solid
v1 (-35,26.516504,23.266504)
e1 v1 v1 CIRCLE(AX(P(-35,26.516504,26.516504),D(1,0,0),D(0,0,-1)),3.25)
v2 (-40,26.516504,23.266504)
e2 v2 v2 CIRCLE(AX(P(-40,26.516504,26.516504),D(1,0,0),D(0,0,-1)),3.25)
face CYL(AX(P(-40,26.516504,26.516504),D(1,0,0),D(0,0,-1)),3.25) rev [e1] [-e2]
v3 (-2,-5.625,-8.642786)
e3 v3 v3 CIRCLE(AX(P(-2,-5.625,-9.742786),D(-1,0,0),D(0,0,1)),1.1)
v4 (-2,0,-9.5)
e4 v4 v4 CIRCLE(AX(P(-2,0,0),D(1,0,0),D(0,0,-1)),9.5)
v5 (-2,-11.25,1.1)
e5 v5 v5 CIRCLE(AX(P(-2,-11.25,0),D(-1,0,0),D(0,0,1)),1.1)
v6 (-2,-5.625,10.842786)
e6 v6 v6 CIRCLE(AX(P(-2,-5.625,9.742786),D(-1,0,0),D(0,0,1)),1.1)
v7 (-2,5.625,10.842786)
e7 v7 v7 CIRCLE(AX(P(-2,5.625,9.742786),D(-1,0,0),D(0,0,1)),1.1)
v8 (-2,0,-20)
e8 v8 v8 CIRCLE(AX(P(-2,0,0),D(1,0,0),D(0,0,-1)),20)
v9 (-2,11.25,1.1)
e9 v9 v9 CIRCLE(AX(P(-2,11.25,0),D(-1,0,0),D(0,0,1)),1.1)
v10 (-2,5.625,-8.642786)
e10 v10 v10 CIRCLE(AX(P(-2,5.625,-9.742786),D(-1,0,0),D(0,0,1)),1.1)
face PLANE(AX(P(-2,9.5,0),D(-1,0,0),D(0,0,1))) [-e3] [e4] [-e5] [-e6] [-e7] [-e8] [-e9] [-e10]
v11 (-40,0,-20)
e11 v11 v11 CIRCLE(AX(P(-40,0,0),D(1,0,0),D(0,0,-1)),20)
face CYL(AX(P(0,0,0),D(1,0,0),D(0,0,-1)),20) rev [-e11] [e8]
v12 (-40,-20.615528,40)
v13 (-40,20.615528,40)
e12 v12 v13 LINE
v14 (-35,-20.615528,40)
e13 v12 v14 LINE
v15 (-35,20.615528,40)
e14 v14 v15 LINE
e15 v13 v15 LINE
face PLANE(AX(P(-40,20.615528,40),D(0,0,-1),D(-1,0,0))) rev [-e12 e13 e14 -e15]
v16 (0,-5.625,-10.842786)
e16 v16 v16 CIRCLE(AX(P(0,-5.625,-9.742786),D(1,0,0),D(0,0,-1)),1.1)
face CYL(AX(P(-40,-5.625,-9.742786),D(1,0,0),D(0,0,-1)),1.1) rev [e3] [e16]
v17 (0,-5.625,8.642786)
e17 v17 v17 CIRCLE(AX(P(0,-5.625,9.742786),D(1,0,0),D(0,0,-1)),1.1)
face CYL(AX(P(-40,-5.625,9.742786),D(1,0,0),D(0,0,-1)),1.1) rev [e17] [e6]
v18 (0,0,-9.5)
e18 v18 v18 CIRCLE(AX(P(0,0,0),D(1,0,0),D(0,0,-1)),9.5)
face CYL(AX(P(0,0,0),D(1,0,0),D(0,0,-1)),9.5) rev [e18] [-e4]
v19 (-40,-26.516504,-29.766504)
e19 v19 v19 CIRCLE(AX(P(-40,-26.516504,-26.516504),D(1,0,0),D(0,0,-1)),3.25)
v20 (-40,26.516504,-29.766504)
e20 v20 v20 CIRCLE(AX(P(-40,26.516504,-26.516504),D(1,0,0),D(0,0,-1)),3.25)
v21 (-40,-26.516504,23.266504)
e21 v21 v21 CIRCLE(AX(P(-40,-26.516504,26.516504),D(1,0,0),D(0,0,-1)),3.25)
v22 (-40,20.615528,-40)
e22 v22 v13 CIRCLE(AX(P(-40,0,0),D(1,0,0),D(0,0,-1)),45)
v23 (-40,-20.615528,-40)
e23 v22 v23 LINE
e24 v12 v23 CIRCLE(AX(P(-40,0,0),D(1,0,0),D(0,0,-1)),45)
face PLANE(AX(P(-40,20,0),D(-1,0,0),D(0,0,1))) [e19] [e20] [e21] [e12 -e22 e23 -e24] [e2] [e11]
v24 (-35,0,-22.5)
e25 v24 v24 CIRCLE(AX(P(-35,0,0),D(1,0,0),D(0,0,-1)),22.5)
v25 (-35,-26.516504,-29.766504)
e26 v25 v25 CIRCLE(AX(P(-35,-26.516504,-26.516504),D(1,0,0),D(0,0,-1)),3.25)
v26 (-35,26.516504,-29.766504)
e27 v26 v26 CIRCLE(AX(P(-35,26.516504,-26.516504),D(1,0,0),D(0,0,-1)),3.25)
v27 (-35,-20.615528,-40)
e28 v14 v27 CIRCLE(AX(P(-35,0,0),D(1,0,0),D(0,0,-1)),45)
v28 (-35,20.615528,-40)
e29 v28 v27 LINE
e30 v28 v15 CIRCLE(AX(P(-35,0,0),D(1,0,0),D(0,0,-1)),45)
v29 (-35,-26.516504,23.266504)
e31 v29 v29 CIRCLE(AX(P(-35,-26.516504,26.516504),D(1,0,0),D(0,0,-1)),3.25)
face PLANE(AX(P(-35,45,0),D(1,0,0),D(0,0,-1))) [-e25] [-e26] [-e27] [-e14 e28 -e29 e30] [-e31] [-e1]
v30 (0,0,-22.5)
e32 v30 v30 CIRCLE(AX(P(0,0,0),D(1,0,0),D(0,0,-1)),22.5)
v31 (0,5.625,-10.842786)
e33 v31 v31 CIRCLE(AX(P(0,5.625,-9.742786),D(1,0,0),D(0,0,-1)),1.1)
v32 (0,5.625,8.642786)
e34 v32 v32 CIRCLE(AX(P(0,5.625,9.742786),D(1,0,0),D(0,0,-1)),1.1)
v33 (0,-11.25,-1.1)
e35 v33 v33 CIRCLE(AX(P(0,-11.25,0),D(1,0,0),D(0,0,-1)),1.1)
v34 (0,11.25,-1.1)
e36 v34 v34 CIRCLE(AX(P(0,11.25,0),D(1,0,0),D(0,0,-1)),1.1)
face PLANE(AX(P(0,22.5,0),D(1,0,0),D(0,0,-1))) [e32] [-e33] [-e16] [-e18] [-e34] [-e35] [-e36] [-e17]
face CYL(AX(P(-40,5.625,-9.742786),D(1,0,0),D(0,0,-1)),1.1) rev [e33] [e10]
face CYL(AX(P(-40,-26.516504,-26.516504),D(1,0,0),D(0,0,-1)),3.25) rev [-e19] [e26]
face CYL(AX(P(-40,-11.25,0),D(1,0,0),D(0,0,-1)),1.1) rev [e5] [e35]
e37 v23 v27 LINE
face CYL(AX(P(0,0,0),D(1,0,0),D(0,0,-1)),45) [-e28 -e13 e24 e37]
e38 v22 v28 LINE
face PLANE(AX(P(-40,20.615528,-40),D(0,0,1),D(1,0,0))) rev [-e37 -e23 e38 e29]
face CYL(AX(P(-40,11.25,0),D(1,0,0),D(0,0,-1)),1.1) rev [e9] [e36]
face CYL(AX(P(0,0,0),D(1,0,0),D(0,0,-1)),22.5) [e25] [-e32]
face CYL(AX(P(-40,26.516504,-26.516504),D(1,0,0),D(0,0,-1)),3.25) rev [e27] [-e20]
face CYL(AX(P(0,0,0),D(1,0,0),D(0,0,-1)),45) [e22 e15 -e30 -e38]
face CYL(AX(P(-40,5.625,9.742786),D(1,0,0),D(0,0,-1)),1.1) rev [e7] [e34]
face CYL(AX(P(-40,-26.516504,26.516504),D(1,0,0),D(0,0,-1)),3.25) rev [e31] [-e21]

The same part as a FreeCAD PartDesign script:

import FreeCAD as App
import Part
import Sketcher
Q = App.Units.Quantity

doc = App.newDocument("Part")
body = doc.addObject("PartDesign::Body", "Body")

# Sketch on XY plane
sketch1 = doc.addObject("Sketcher::SketchObject", "Sketch")
body.addObject(sketch1)
sketch1.AttachmentSupport = (doc.XY_Plane, [""])
sketch1.MapMode = "FlatFace"
sketch1.addGeometry(Part.LineSegment(App.Vector(-2, 20, 0), App.Vector(-2, 9.5, 0)), False)
sketch1.addGeometry(Part.LineSegment(App.Vector(-2, 9.5, 0), App.Vector(0, 9.5, 0)), False)
sketch1.addGeometry(Part.LineSegment(App.Vector(0, 9.5, 0), App.Vector(0, 22.5, 0)), False)
sketch1.addGeometry(Part.LineSegment(App.Vector(0, 22.5, 0), App.Vector(-35, 22.5, 0)), False)
sketch1.addGeometry(Part.LineSegment(App.Vector(-35, 22.5, 0), App.Vector(-35, 45, 0)), False)
sketch1.addGeometry(Part.LineSegment(App.Vector(-35, 45, 0), App.Vector(-40, 45, 0)), False)
sketch1.addGeometry(Part.LineSegment(App.Vector(-40, 45, 0), App.Vector(-40, 20, 0)), False)
sketch1.addGeometry(Part.LineSegment(App.Vector(-40, 20, 0), App.Vector(-2, 20, 0)), False)
sketch1.addConstraint(Sketcher.Constraint("Coincident", 0, 2, 1, 1))
sketch1.addConstraint(Sketcher.Constraint("Coincident", 1, 2, 2, 1))
sketch1.addConstraint(Sketcher.Constraint("Coincident", 2, 2, 3, 1))
sketch1.addConstraint(Sketcher.Constraint("Coincident", 3, 2, 4, 1))
sketch1.addConstraint(Sketcher.Constraint("Coincident", 4, 2, 5, 1))
sketch1.addConstraint(Sketcher.Constraint("Coincident", 5, 2, 6, 1))
sketch1.addConstraint(Sketcher.Constraint("Coincident", 6, 2, 7, 1))
sketch1.addConstraint(Sketcher.Constraint("Coincident", 7, 2, 0, 1))
sketch1.addConstraint(Sketcher.Constraint("Vertical", 0))
sketch1.addConstraint(Sketcher.Constraint("Horizontal", 1))
sketch1.addConstraint(Sketcher.Constraint("Vertical", 2))
sketch1.addConstraint(Sketcher.Constraint("Horizontal", 3))
sketch1.addConstraint(Sketcher.Constraint("Vertical", 4))
sketch1.addConstraint(Sketcher.Constraint("Horizontal", 5))
sketch1.addConstraint(Sketcher.Constraint("Vertical", 6))
sketch1.addConstraint(Sketcher.Constraint("Horizontal", 7))
sketch1.addConstraint(Sketcher.Constraint("PointOnObject", 1, 2, -2))
sketch1.addConstraint(Sketcher.Constraint("DistanceX", 1, 1, 1, 2, Q("2 mm")))
sketch1.addConstraint(Sketcher.Constraint("DistanceX", 3, 2, 3, 1, Q("35 mm")))
sketch1.addConstraint(Sketcher.Constraint("DistanceX", 5, 2, 5, 1, Q("5 mm")))
sketch1.addConstraint(Sketcher.Constraint("DistanceY", 2, 1, 2, 2, Q("13 mm")))
sketch1.addConstraint(Sketcher.Constraint("DistanceY", 6, 2, 6, 1, Q("25 mm")))
sketch1.addConstraint(Sketcher.Constraint("DistanceY", 0, 2, 0, 1, Q("10.5 mm")))
sketch1.addConstraint(Sketcher.Constraint("DistanceY", -1, 1, 4, 2, Q("45 mm")))
revolution = doc.addObject("PartDesign::Revolution", "Revolution")
body.addObject(revolution)
revolution.Profile = sketch1
revolution.ReferenceAxis = (sketch1, ["H_Axis"])
revolution.Angle = 360

# Sketch on YZ plane
sketch2 = doc.addObject("Sketcher::SketchObject", "Sketch001")
body.addObject(sketch2)
sketch2.AttachmentSupport = (doc.YZ_Plane, [""])
sketch2.MapMode = "FlatFace"
sketch2.addGeometry(Part.Circle(App.Vector(26.516504, -26.516504, 0), App.Vector(0, 0, 1), 3.25), False)
sketch2.addGeometry(Part.Circle(App.Vector(-26.516504, -26.516504, 0), App.Vector(0, 0, 1), 3.25), False)
sketch2.addGeometry(Part.Circle(App.Vector(-26.516504, 26.516504, 0), App.Vector(0, 0, 1), 3.25), False)
sketch2.addGeometry(Part.Circle(App.Vector(26.516504, 26.516504, 0), App.Vector(0, 0, 1), 3.25), False)
sketch2.addGeometry(Part.Circle(App.Vector(11.25, 0, 0), App.Vector(0, 0, 1), 1.1), False)
sketch2.addGeometry(Part.Circle(App.Vector(5.625, -9.742786, 0), App.Vector(0, 0, 1), 1.1), False)
sketch2.addGeometry(Part.Circle(App.Vector(-5.625, -9.742786, 0), App.Vector(0, 0, 1), 1.1), False)
sketch2.addGeometry(Part.Circle(App.Vector(-11.25, 0, 0), App.Vector(0, 0, 1), 1.1), False)
sketch2.addGeometry(Part.Circle(App.Vector(-5.625, 9.742786, 0), App.Vector(0, 0, 1), 1.1), False)
sketch2.addGeometry(Part.Circle(App.Vector(5.625, 9.742786, 0), App.Vector(0, 0, 1), 1.1), False)
sketch2.addGeometry(Part.LineSegment(App.Vector(20.615528, 45, 0), App.Vector(-20.615528, 45, 0)), False)
sketch2.addGeometry(Part.LineSegment(App.Vector(-20.615528, 45, 0), App.Vector(-20.615528, 40, 0)), False)
sketch2.addGeometry(Part.LineSegment(App.Vector(-20.615528, 40, 0), App.Vector(20.615528, 40, 0)), False)
sketch2.addGeometry(Part.LineSegment(App.Vector(20.615528, 40, 0), App.Vector(20.615528, 45, 0)), False)
sketch2.addGeometry(Part.LineSegment(App.Vector(20.615528, -40, 0), App.Vector(-20.615528, -40, 0)), False)
sketch2.addGeometry(Part.LineSegment(App.Vector(-20.615528, -40, 0), App.Vector(-20.615528, -45, 0)), False)
sketch2.addGeometry(Part.LineSegment(App.Vector(-20.615528, -45, 0), App.Vector(20.615528, -45, 0)), False)
sketch2.addGeometry(Part.LineSegment(App.Vector(20.615528, -45, 0), App.Vector(20.615528, -40, 0)), False)
sketch2.addConstraint(Sketcher.Constraint("Coincident", 10, 2, 11, 1))
sketch2.addConstraint(Sketcher.Constraint("Coincident", 11, 2, 12, 1))
sketch2.addConstraint(Sketcher.Constraint("Coincident", 12, 2, 13, 1))
sketch2.addConstraint(Sketcher.Constraint("Coincident", 13, 2, 10, 1))
sketch2.addConstraint(Sketcher.Constraint("Coincident", 14, 2, 15, 1))
sketch2.addConstraint(Sketcher.Constraint("Coincident", 15, 2, 16, 1))
sketch2.addConstraint(Sketcher.Constraint("Coincident", 16, 2, 17, 1))
sketch2.addConstraint(Sketcher.Constraint("Coincident", 17, 2, 14, 1))
sketch2.addConstraint(Sketcher.Constraint("Horizontal", 10))
sketch2.addConstraint(Sketcher.Constraint("Vertical", 11))
sketch2.addConstraint(Sketcher.Constraint("Horizontal", 12))
sketch2.addConstraint(Sketcher.Constraint("Vertical", 13))
sketch2.addConstraint(Sketcher.Constraint("Horizontal", 14))
sketch2.addConstraint(Sketcher.Constraint("Vertical", 15))
sketch2.addConstraint(Sketcher.Constraint("Horizontal", 16))
sketch2.addConstraint(Sketcher.Constraint("Vertical", 17))
sketch2.addConstraint(Sketcher.Constraint("Equal", 0, 1))
sketch2.addConstraint(Sketcher.Constraint("Equal", 1, 2))
sketch2.addConstraint(Sketcher.Constraint("Equal", 2, 3))
sketch2.addConstraint(Sketcher.Constraint("Equal", 4, 5))
sketch2.addConstraint(Sketcher.Constraint("Equal", 5, 6))
sketch2.addConstraint(Sketcher.Constraint("Equal", 6, 7))
sketch2.addConstraint(Sketcher.Constraint("Equal", 7, 8))
sketch2.addConstraint(Sketcher.Constraint("Equal", 8, 9))
sketch2.addConstraint(Sketcher.Constraint("Symmetric", 0, 3, 2, 3, -1, 1))
sketch2.addConstraint(Sketcher.Constraint("Symmetric", 1, 3, 3, 3, -1, 1))
sketch2.addConstraint(Sketcher.Constraint("Symmetric", 4, 3, 7, 3, -1, 1))
sketch2.addConstraint(Sketcher.Constraint("Symmetric", 5, 3, 8, 3, -1, 1))
sketch2.addConstraint(Sketcher.Constraint("Symmetric", 6, 3, 9, 3, -1, 1))
sketch2.addConstraint(Sketcher.Constraint("Symmetric", 12, 2, 14, 2, -1, 1))
sketch2.addConstraint(Sketcher.Constraint("Symmetric", 10, 2, 16, 2, -1, 1))
sketch2.addConstraint(Sketcher.Constraint("Symmetric", 0, 3, 1, 3, -2))
sketch2.addConstraint(Sketcher.Constraint("Symmetric", 5, 3, 6, 3, -2))
sketch2.addConstraint(Sketcher.Constraint("PointOnObject", 4, 3, -1))
sketch2.addConstraint(Sketcher.Constraint("Vertical", 11, 2, 14, 2))
sketch2.addConstraint(Sketcher.Constraint("Diameter", 0, Q("6.5 mm")))
sketch2.addConstraint(Sketcher.Constraint("Diameter", 4, Q("2.2 mm")))
sketch2.addConstraint(Sketcher.Constraint("DistanceY", 11, 2, 11, 1, Q("5 mm")))
sketch2.addConstraint(Sketcher.Constraint("DistanceY", -1, 1, 10, 2, Q("45 mm")))
sketch2.addConstraint(Sketcher.Constraint("DistanceX", 7, 3, 4, 3, Q("22.5 mm")))
sketch2.addConstraint(Sketcher.Constraint("DistanceX", 6, 3, 5, 3, Q("11.25 mm")))
sketch2.addConstraint(Sketcher.Constraint("DistanceX", 10, 2, 10, 1, Q("41.231056 mm")))
sketch2.addConstraint(Sketcher.Constraint("DistanceX", 1, 3, 0, 3, Q("53.033009 mm")))
sketch2.addConstraint(Sketcher.Constraint("DistanceY", 1, 3, 2, 3, Q("53.033009 mm")))
sketch2.addConstraint(Sketcher.Constraint("DistanceY", 0, 3, 5, 3, Q("16.773719 mm")))
pocket1 = doc.addObject("PartDesign::Pocket", "Pocket")
body.addObject(pocket1)
pocket1.Profile = sketch2
pocket1.Type = "ThroughAll"

doc.recompute()
